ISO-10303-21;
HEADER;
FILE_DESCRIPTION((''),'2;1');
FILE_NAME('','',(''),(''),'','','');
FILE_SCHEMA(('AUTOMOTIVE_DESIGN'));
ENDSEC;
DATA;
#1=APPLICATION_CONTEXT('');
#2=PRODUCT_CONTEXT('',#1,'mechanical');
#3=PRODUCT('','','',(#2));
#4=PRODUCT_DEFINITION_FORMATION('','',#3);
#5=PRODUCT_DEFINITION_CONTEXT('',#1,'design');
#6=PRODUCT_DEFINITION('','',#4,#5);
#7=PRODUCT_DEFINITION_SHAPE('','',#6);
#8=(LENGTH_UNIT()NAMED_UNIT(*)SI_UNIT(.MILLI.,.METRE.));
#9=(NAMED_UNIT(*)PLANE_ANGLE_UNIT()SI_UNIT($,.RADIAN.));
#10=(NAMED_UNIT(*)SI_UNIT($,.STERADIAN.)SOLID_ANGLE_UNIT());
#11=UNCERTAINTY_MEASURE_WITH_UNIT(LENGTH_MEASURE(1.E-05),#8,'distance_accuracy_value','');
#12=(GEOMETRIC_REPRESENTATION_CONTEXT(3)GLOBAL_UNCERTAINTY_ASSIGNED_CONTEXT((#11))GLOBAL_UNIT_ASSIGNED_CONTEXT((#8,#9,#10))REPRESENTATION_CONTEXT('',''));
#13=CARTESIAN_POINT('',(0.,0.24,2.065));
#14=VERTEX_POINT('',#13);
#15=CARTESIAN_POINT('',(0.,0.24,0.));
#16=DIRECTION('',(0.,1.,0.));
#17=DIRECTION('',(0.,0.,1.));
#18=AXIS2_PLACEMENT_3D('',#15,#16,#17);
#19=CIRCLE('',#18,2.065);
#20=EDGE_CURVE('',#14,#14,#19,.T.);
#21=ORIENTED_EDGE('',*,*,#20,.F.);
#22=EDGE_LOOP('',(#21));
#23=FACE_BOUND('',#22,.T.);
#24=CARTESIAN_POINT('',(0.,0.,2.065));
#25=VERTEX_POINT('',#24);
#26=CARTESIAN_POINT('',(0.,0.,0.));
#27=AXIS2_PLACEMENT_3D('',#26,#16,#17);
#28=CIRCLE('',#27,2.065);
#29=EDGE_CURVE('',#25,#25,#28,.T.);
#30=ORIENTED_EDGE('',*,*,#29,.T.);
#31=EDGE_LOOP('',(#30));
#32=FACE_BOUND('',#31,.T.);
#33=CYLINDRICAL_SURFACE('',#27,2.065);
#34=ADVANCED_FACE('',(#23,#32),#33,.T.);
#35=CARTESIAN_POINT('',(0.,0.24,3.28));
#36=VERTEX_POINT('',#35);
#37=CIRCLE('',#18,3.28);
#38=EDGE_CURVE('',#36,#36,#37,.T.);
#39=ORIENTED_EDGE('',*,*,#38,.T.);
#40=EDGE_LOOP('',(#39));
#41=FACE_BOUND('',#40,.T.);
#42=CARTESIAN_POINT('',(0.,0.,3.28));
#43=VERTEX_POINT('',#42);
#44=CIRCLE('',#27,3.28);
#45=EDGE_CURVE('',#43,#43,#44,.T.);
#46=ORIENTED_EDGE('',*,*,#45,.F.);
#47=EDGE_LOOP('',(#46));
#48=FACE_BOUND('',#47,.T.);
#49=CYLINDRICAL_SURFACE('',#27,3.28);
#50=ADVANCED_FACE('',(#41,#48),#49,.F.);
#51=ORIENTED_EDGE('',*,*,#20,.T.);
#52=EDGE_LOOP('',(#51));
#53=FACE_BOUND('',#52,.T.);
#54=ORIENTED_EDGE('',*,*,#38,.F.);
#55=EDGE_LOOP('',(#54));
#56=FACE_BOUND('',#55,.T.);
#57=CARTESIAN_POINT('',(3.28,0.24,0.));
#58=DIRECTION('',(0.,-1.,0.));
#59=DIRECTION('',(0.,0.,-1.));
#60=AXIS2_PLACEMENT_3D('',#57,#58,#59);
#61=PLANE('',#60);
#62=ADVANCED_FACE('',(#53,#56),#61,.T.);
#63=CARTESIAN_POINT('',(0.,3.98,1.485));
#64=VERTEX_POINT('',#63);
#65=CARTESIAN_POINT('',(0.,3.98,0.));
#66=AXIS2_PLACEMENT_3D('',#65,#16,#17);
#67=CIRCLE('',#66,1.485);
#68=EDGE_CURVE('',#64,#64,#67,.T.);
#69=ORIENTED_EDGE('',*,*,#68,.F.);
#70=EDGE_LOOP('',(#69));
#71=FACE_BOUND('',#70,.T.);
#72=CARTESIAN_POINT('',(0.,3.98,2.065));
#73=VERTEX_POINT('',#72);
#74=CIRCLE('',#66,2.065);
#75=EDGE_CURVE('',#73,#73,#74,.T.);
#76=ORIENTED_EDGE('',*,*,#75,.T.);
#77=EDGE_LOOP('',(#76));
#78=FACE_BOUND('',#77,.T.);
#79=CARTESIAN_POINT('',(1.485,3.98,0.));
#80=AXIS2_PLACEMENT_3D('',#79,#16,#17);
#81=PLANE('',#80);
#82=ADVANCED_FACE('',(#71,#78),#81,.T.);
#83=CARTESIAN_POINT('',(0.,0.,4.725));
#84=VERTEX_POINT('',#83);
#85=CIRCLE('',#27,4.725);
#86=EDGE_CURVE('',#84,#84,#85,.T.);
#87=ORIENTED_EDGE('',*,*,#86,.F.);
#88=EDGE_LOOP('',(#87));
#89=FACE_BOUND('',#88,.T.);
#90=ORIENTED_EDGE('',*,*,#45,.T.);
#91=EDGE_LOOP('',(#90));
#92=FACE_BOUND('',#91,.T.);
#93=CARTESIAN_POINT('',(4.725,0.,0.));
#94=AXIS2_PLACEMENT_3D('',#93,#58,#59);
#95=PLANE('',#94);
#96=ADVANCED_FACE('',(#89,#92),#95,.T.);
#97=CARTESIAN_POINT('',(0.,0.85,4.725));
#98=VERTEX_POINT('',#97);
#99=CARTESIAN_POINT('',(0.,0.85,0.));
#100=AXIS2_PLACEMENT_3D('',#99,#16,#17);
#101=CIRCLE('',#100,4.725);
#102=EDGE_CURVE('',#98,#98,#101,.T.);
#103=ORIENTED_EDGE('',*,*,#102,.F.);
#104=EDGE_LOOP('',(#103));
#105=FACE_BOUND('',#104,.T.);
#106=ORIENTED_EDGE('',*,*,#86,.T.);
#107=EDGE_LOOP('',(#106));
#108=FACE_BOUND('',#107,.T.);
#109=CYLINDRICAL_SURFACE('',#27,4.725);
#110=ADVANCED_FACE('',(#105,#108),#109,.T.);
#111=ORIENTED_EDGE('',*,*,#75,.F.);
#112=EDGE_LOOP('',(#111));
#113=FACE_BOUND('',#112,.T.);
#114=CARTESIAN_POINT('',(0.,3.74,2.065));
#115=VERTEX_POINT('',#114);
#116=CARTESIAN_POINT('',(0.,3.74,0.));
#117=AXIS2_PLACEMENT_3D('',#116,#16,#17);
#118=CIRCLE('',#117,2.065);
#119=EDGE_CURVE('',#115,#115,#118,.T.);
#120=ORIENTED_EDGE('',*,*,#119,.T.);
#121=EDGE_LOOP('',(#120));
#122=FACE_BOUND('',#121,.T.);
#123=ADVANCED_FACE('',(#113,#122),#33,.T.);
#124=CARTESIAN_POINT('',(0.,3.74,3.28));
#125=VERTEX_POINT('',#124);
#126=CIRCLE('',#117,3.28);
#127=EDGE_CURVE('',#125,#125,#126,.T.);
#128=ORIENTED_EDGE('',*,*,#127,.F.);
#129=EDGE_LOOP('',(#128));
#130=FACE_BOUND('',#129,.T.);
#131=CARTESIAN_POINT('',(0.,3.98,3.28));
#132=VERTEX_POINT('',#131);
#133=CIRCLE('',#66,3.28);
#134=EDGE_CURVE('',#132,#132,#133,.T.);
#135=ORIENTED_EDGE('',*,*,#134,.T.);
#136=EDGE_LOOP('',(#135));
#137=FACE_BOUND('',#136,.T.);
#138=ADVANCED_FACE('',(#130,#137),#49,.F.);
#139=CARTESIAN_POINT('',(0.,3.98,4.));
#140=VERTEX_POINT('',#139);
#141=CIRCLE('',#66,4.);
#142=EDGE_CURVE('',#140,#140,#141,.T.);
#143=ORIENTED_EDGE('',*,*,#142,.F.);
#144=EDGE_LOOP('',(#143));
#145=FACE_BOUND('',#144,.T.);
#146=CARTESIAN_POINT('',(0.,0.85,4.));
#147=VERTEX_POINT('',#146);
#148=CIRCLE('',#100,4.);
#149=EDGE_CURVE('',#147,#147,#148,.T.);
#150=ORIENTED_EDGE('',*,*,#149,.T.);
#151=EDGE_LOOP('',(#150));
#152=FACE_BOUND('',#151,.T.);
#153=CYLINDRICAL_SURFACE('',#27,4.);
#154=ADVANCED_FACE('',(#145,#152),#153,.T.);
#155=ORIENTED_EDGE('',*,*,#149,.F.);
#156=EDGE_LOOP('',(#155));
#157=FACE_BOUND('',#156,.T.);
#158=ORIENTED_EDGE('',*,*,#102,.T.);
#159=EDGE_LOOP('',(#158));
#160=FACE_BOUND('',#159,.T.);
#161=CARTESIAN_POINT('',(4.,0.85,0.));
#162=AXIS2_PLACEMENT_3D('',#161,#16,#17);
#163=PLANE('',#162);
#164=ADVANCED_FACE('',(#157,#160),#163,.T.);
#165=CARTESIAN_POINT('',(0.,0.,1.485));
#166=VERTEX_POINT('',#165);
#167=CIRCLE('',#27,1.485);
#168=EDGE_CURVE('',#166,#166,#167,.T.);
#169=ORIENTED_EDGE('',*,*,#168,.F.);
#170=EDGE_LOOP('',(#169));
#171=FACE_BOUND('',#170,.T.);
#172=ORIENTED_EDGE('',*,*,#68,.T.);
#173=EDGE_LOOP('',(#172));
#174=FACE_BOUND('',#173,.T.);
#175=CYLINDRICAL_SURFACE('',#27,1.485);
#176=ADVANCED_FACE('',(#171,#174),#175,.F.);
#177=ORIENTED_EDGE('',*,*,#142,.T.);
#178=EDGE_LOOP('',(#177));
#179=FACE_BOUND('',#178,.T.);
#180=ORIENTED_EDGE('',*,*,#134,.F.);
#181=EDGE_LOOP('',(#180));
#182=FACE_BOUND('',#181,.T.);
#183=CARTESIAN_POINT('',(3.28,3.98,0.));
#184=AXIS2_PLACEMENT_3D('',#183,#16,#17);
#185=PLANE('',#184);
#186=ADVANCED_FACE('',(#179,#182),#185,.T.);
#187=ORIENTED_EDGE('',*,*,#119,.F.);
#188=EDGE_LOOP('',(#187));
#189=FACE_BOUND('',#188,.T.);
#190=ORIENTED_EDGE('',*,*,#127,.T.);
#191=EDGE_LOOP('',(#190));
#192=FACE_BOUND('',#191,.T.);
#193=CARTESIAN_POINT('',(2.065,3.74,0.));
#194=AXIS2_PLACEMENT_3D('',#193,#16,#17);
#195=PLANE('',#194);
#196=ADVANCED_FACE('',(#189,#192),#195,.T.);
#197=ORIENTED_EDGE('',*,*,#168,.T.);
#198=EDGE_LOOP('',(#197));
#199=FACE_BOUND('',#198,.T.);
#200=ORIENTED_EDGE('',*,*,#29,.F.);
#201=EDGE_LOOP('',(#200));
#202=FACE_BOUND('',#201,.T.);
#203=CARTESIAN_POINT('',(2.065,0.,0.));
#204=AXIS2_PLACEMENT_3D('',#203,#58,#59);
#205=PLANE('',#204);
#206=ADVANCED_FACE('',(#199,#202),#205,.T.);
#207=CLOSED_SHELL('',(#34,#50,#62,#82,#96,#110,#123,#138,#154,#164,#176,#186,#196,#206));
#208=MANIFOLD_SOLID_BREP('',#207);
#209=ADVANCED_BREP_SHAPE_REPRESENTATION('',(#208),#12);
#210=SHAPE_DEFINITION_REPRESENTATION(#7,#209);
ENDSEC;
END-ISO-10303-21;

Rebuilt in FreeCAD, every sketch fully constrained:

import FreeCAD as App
import Part
import Sketcher
from FreeCAD import Vector


def add_polygon(sketch, points):
    """Adds a closed chain of lines whose ends are joined by coincident constraints."""
    first, n = sketch.GeometryCount, len(points)
    for a, b in zip(points, points[1:] + points[:1]):
        sketch.addGeometry(Part.LineSegment(App.Vector(*a, 0), App.Vector(*b, 0)), False)
    for i in range(n):
        sketch.addConstraint(Sketcher.Constraint("Coincident", first + i, 2, first + (i + 1) % n, 1))

doc = App.newDocument("Part")
params = doc.addObject("Spreadsheet::Sheet", "Params")
for row, (alias, value) in enumerate([
    ("sketch1_width", "0.58 mm"),
    ("sketch1_width2", "0.72 mm"),
    ("sketch1_height", "0.24 mm"),
    ("sketch1_height2", "3.98 mm"),
    ("sketch1_height3", "3.13 mm"),
    ("revolution_angle", "360 deg"),
], start=1):
    params.set(f"A{row}", alias)
    params.set(f"B{row}", "=" + value)
    params.setAlias(f"B{row}", alias)

body = doc.addObject("PartDesign::Body", "Body")

# Sketch on XY plane
sketch1 = body.newObject("Sketcher::SketchObject", "Sketch")
sketch1.AttachmentSupport = (doc.getObject("XY_Plane"), [""])
sketch1.MapMode = "FlatFace"
add_polygon(sketch1, [(2.06, 0.24), (2.06, 0), (1.49, 0), (1.49, 3.98), (2.06, 3.98), (2.06, 3.74), (3.28, 3.74), (3.28, 3.98), (4, 3.98), (4, 0.85), (4.72, 0.85), (4.72, 0), (3.28, 0), (3.28, 0.24)])  # lines 0-13
sketch1.addConstraint(Sketcher.Constraint("Vertical", 0))
sketch1.addConstraint(Sketcher.Constraint("Horizontal", 1))
sketch1.addConstraint(Sketcher.Constraint("Vertical", 2))
sketch1.addConstraint(Sketcher.Constraint("Horizontal", 3))
sketch1.addConstraint(Sketcher.Constraint("Vertical", 4))
sketch1.addConstraint(Sketcher.Constraint("Horizontal", 5))
sketch1.addConstraint(Sketcher.Constraint("Vertical", 6))
sketch1.addConstraint(Sketcher.Constraint("Horizontal", 7))
sketch1.addConstraint(Sketcher.Constraint("Vertical", 8))
sketch1.addConstraint(Sketcher.Constraint("Horizontal", 9))
sketch1.addConstraint(Sketcher.Constraint("Vertical", 10))
sketch1.addConstraint(Sketcher.Constraint("Horizontal", 11))
sketch1.addConstraint(Sketcher.Constraint("Vertical", 12))
sketch1.addConstraint(Sketcher.Constraint("Horizontal", 13))
sketch1.addConstraint(Sketcher.Constraint("PointOnObject", 0, 2, -1))
sketch1.addConstraint(Sketcher.Constraint("PointOnObject", 10, 2, -1))
sketch1.addConstraint(Sketcher.Constraint("Horizontal", 3, 2, 6, 2))
sketch1.addConstraint(Sketcher.Constraint("Vertical", 0, 2, 3, 2))
sketch1.addConstraint(Sketcher.Constraint("Vertical", 6, 2, 11, 2))
sketch1.addConstraint(Sketcher.Constraint("Equal", 0, 4))
sketch1.addConstraint(Sketcher.Constraint("DistanceX", -1, 1, 7, 2, 4.0))
sketch1.addConstraint(Sketcher.Constraint("DistanceX", 1, 2, 1, 1, 0.58))
sketch1.addConstraint(Sketcher.Constraint("DistanceX", 7, 1, 7, 2, 0.72))
sketch1.addConstraint(Sketcher.Constraint("DistanceY", 0, 2, 0, 1, 0.24))
sketch1.addConstraint(Sketcher.Constraint("DistanceY", 2, 1, 2, 2, 3.98))
sketch1.addConstraint(Sketcher.Constraint("DistanceY", 8, 2, 8, 1, 3.13))
sketch1.addConstraint(Sketcher.Constraint("DistanceX", 5, 1, 5, 2, 1.215))
sketch1.addConstraint(Sketcher.Constraint("DistanceX", 9, 1, 9, 2, 0.725))
sketch1.setExpression("Constraints[35]", "Params.sketch1_width")
sketch1.setExpression("Constraints[36]", "Params.sketch1_width2")
sketch1.setExpression("Constraints[37]", "Params.sketch1_height")
sketch1.setExpression("Constraints[38]", "Params.sketch1_height2")
sketch1.setExpression("Constraints[39]", "Params.sketch1_height3")
revolution = body.newObject("PartDesign::Revolution", "Revolution")
revolution.Profile = sketch1
revolution.ReferenceAxis = (sketch1, ["V_Axis"])
revolution.setExpression("Angle", "Params.revolution_angle")

doc.recompute()
